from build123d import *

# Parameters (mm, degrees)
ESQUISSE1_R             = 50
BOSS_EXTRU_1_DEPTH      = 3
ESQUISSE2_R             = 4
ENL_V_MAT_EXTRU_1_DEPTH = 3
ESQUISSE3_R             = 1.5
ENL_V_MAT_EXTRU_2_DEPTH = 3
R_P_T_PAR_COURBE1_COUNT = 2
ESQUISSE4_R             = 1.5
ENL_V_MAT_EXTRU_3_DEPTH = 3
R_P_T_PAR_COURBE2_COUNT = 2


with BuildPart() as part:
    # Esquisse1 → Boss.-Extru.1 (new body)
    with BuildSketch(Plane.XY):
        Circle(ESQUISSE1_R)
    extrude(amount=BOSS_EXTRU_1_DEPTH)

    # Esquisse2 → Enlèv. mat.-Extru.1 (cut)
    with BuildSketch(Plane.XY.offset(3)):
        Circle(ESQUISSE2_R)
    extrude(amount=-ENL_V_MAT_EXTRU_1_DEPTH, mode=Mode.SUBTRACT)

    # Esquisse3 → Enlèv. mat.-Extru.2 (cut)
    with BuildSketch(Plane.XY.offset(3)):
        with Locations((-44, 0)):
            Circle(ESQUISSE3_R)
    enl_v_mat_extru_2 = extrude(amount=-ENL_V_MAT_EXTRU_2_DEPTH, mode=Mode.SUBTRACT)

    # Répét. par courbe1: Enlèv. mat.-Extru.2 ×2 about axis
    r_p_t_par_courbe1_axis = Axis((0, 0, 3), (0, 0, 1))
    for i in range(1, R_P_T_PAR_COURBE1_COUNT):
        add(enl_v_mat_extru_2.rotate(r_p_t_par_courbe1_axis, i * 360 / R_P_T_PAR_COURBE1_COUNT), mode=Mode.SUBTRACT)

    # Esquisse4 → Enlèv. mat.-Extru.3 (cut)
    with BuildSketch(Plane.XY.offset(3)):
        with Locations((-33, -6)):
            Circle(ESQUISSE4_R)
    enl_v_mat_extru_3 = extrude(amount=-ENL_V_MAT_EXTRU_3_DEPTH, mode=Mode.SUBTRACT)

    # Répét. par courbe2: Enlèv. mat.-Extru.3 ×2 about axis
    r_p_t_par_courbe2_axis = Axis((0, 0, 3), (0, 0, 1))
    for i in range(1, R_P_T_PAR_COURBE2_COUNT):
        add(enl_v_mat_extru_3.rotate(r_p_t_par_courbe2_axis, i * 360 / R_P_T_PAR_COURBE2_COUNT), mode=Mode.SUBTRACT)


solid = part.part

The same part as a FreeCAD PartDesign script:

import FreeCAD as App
import Part
import Sketcher
from FreeCAD import Vector

doc = App.newDocument("Part")
body = doc.addObject("PartDesign::Body", "Body")

sketch1 = body.newObject("Sketcher::SketchObject", "Sketch")
sketch1.AttachmentSupport = (doc.getObject("XY_Plane"), [""])
sketch1.MapMode = "FlatFace"
sketch1.addGeometry(Part.Circle(Vector(0, 0, 0), Vector(0, 0, 1), 50), False)
sketch1.addConstraint([
    Sketcher.Constraint("Coincident", 0, 3, -1, 1),
    Sketcher.Constraint("Diameter", 0, 100.0),
])
pad1 = body.newObject("PartDesign::Pad", "Pad")
pad1.Profile = sketch1
pad1.Length = 3

sketch2 = body.newObject("Sketcher::SketchObject", "Sketch001")
sketch2.AttachmentSupport = (doc.getObject("XY_Plane"), [""])
sketch2.MapMode = "FlatFace"
sketch2.AttachmentOffset = App.Placement(Vector(0, 0, 3), App.Rotation())
sketch2.addGeometry(Part.Circle(Vector(0, 0, 0), Vector(0, 0, 1), 4), False)
sketch2.addConstraint([
    Sketcher.Constraint("Coincident", 0, 3, -1, 1),
    Sketcher.Constraint("Diameter", 0, 8.0),
])
pocket1 = body.newObject("PartDesign::Pocket", "Pocket")
pocket1.Profile = sketch2
pocket1.Length = 3

sketch3 = body.newObject("Sketcher::SketchObject", "Sketch002")
sketch3.AttachmentSupport = (doc.getObject("XY_Plane"), [""])
sketch3.MapMode = "FlatFace"
sketch3.AttachmentOffset = App.Placement(Vector(0, 0, 3), App.Rotation())
sketch3.addGeometry(Part.Circle(Vector(-44, 0, 0), Vector(0, 0, 1), 1.5), False)
sketch3.addConstraint([
    Sketcher.Constraint("PointOnObject", 0, 3, -1),
    Sketcher.Constraint("Diameter", 0, 3.0),
    Sketcher.Constraint("DistanceX", 0, 3, -1, 1, 44.0),
])
pocket2 = body.newObject("PartDesign::Pocket", "Pocket001")
pocket2.Profile = sketch3
pocket2.Length = 3
doc.recompute()

polarpattern = body.newObject("PartDesign::PolarPattern", "PolarPattern")
polarpattern.Originals = [pocket2]
polarpattern.Axis = (doc.getObject("Z_Axis"), [""])
polarpattern.Angle = 360
polarpattern.Occurrences = 2
body.Tip = polarpattern

sketch4 = body.newObject("Sketcher::SketchObject", "Sketch003")
sketch4.AttachmentSupport = (doc.getObject("XY_Plane"), [""])
sketch4.MapMode = "FlatFace"
sketch4.AttachmentOffset = App.Placement(Vector(0, 0, 3), App.Rotation())
sketch4.addGeometry(Part.Circle(Vector(-33, -6, 0), Vector(0, 0, 1), 1.5), False)
sketch4.addConstraint([
    Sketcher.Constraint("Diameter", 0, 3.0),
    Sketcher.Constraint("DistanceX", 0, 3, -1, 1, 33.0),
    Sketcher.Constraint("DistanceY", 0, 3, -1, 1, 6.0),
])
pocket3 = body.newObject("PartDesign::Pocket", "Pocket002")
pocket3.Profile = sketch4
pocket3.Length = 3
doc.recompute()

polarpattern2 = body.newObject("PartDesign::PolarPattern", "PolarPattern001")
polarpattern2.Originals = [pocket3]
polarpattern2.Axis = (doc.getObject("Z_Axis"), [""])
polarpattern2.Angle = 360
polarpattern2.Occurrences = 2
body.Tip = polarpattern2

doc.recompute()
